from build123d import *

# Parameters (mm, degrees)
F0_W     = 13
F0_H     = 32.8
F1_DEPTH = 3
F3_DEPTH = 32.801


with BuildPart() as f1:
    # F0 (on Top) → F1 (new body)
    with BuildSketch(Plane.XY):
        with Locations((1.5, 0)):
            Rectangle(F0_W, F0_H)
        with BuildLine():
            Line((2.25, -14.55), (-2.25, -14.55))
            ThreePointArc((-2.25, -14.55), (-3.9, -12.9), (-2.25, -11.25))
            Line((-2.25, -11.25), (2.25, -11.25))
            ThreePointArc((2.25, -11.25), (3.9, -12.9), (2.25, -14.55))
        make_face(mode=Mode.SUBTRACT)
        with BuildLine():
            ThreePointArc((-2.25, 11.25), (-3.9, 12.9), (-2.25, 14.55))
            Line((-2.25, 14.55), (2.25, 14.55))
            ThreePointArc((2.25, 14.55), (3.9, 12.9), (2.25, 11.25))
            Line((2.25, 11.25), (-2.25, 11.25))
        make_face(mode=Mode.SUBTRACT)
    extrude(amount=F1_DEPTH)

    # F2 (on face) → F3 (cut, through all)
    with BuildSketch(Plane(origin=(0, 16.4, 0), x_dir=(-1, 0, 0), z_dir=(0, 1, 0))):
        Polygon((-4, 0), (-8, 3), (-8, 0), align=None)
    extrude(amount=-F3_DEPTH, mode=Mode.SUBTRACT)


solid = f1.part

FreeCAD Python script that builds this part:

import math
import FreeCAD as App
import Part
import Sketcher


def add_polygon(sketch, points):
    """Adds a closed chain of lines whose ends are joined by coincident constraints."""
    first, n = sketch.GeometryCount, len(points)
    for a, b in zip(points, points[1:] + points[:1]):
        sketch.addGeometry(Part.LineSegment(App.Vector(*a, 0), App.Vector(*b, 0)), False)
    for i in range(n):
        sketch.addConstraint(Sketcher.Constraint("Coincident", first + i, 2, first + (i + 1) % n, 1))

doc = App.newDocument("Part")
body = doc.addObject("PartDesign::Body", "Body")

# Sketch on XY plane
sketch1 = body.newObject("Sketcher::SketchObject", "Sketch")
sketch1.AttachmentSupport = (doc.getObject("XY_Plane"), [""])
sketch1.MapMode = "FlatFace"
add_polygon(sketch1, [(-5, 16.4), (-5, -16.4), (8, -16.4), (8, 16.4)])  # lines 0-3
sketch1.addGeometry(Part.ArcOfCircle(Part.Circle(App.Vector(2.2, -12.9, 0), App.Vector(0, 0, 1), 1.6), math.radians(-90), math.radians(90)), False)  # 4
sketch1.addGeometry(Part.LineSegment(App.Vector(2.2, -14.6, 0), App.Vector(-2.2, -14.6, 0)), False)  # 5
sketch1.addGeometry(Part.ArcOfCircle(Part.Circle(App.Vector(-2.2, -12.9, 0), App.Vector(0, 0, 1), 1.6), math.radians(90), math.radians(270)), False)  # 6
sketch1.addGeometry(Part.LineSegment(App.Vector(-2.2, -11.2, 0), App.Vector(2.2, -11.2, 0)), False)  # 7
sketch1.addGeometry(Part.LineSegment(App.Vector(2.2, 11.2, 0), App.Vector(-2.2, 11.2, 0)), False)  # 8
sketch1.addGeometry(Part.ArcOfCircle(Part.Circle(App.Vector(-2.2, 12.9, 0), App.Vector(0, 0, 1), 1.6), math.radians(90), math.radians(270)), False)  # 9
sketch1.addGeometry(Part.LineSegment(App.Vector(-2.2, 14.6, 0), App.Vector(2.2, 14.6, 0)), False)  # 10
sketch1.addGeometry(Part.ArcOfCircle(Part.Circle(App.Vector(2.2, 12.9, 0), App.Vector(0, 0, 1), 1.6), math.radians(-90), math.radians(90)), False)  # 11
sketch1.addConstraint(Sketcher.Constraint("Tangent", 4, 1, 5, 1))
sketch1.addConstraint(Sketcher.Constraint("Tangent", 5, 2, 6, 2))
sketch1.addConstraint(Sketcher.Constraint("Tangent", 6, 1, 7, 1))
sketch1.addConstraint(Sketcher.Constraint("Tangent", 7, 2, 4, 2))
sketch1.addConstraint(Sketcher.Constraint("Tangent", 8, 2, 9, 2))
sketch1.addConstraint(Sketcher.Constraint("Tangent", 9, 1, 10, 1))
sketch1.addConstraint(Sketcher.Constraint("Tangent", 10, 2, 11, 2))
sketch1.addConstraint(Sketcher.Constraint("Tangent", 11, 1, 8, 1))
sketch1.addConstraint(Sketcher.Constraint("Vertical", 0))
sketch1.addConstraint(Sketcher.Constraint("Horizontal", 1))
sketch1.addConstraint(Sketcher.Constraint("Vertical", 2))
sketch1.addConstraint(Sketcher.Constraint("Horizontal", 3))
sketch1.addConstraint(Sketcher.Constraint("Horizontal", 5))
sketch1.addConstraint(Sketcher.Constraint("Horizontal", 7))
sketch1.addConstraint(Sketcher.Constraint("Horizontal", 8))
sketch1.addConstraint(Sketcher.Constraint("Horizontal", 10))
sketch1.addConstraint(Sketcher.Constraint("Equal", 6, 9))
sketch1.addConstraint(Sketcher.Constraint("Symmetric", 4, 3, 9, 3, -1, 1))
sketch1.addConstraint(Sketcher.Constraint("Vertical", 6, 3, 9, 3))
sketch1.addConstraint(Sketcher.Constraint("Vertical", 4, 3, 11, 3))
sketch1.addConstraint(Sketcher.Constraint("DistanceX", 1, 1, 1, 2, 13.0))
sketch1.addConstraint(Sketcher.Constraint("Radius", 4, 1.65))
sketch1.addConstraint(Sketcher.Constraint("DistanceX", 5, 2, 5, 1, 4.5))
sketch1.addConstraint(Sketcher.Constraint("DistanceY", 0, 2, 0, 1, 32.8))
sketch1.addConstraint(Sketcher.Constraint("DistanceX", 0, 2, -1, 1, 5.0))
sketch1.addConstraint(Sketcher.Constraint("DistanceY", 4, 3, -1, 1, 12.9))
sketch1.addConstraint(Sketcher.Constraint("DistanceY", 0, 2, -1, 1, 16.4))
pad1 = body.newObject("PartDesign::Pad", "Pad")
pad1.Profile = sketch1
pad1.Length = 3

# Sketch on XZ plane
sketch2 = body.newObject("Sketcher::SketchObject", "Sketch001")
sketch2.AttachmentSupport = (doc.getObject("XZ_Plane"), [""])
sketch2.MapMode = "FlatFace"
sketch2.AttachmentOffset = App.Placement(App.Vector(0, 0, -16.4), App.Rotation())
add_polygon(sketch2, [(4, 0), (8, 3), (8, 0)])  # lines 0-2
sketch2.addConstraint(Sketcher.Constraint("Vertical", 1))
sketch2.addConstraint(Sketcher.Constraint("Horizontal", 2))
sketch2.addConstraint(Sketcher.Constraint("PointOnObject", 1, 2, -1))
sketch2.addConstraint(Sketcher.Constraint("DistanceX", 2, 2, 2, 1, 4.0))
sketch2.addConstraint(Sketcher.Constraint("DistanceY", 1, 2, 1, 1, 3.0))
sketch2.addConstraint(Sketcher.Constraint("DistanceX", -1, 1, 0, 2, 8.0))
pocket1 = body.newObject("PartDesign::Pocket", "Pocket")
pocket1.Profile = sketch2
pocket1.Type = "ThroughAll"
pocket1.Reversed = True

doc.recompute()
